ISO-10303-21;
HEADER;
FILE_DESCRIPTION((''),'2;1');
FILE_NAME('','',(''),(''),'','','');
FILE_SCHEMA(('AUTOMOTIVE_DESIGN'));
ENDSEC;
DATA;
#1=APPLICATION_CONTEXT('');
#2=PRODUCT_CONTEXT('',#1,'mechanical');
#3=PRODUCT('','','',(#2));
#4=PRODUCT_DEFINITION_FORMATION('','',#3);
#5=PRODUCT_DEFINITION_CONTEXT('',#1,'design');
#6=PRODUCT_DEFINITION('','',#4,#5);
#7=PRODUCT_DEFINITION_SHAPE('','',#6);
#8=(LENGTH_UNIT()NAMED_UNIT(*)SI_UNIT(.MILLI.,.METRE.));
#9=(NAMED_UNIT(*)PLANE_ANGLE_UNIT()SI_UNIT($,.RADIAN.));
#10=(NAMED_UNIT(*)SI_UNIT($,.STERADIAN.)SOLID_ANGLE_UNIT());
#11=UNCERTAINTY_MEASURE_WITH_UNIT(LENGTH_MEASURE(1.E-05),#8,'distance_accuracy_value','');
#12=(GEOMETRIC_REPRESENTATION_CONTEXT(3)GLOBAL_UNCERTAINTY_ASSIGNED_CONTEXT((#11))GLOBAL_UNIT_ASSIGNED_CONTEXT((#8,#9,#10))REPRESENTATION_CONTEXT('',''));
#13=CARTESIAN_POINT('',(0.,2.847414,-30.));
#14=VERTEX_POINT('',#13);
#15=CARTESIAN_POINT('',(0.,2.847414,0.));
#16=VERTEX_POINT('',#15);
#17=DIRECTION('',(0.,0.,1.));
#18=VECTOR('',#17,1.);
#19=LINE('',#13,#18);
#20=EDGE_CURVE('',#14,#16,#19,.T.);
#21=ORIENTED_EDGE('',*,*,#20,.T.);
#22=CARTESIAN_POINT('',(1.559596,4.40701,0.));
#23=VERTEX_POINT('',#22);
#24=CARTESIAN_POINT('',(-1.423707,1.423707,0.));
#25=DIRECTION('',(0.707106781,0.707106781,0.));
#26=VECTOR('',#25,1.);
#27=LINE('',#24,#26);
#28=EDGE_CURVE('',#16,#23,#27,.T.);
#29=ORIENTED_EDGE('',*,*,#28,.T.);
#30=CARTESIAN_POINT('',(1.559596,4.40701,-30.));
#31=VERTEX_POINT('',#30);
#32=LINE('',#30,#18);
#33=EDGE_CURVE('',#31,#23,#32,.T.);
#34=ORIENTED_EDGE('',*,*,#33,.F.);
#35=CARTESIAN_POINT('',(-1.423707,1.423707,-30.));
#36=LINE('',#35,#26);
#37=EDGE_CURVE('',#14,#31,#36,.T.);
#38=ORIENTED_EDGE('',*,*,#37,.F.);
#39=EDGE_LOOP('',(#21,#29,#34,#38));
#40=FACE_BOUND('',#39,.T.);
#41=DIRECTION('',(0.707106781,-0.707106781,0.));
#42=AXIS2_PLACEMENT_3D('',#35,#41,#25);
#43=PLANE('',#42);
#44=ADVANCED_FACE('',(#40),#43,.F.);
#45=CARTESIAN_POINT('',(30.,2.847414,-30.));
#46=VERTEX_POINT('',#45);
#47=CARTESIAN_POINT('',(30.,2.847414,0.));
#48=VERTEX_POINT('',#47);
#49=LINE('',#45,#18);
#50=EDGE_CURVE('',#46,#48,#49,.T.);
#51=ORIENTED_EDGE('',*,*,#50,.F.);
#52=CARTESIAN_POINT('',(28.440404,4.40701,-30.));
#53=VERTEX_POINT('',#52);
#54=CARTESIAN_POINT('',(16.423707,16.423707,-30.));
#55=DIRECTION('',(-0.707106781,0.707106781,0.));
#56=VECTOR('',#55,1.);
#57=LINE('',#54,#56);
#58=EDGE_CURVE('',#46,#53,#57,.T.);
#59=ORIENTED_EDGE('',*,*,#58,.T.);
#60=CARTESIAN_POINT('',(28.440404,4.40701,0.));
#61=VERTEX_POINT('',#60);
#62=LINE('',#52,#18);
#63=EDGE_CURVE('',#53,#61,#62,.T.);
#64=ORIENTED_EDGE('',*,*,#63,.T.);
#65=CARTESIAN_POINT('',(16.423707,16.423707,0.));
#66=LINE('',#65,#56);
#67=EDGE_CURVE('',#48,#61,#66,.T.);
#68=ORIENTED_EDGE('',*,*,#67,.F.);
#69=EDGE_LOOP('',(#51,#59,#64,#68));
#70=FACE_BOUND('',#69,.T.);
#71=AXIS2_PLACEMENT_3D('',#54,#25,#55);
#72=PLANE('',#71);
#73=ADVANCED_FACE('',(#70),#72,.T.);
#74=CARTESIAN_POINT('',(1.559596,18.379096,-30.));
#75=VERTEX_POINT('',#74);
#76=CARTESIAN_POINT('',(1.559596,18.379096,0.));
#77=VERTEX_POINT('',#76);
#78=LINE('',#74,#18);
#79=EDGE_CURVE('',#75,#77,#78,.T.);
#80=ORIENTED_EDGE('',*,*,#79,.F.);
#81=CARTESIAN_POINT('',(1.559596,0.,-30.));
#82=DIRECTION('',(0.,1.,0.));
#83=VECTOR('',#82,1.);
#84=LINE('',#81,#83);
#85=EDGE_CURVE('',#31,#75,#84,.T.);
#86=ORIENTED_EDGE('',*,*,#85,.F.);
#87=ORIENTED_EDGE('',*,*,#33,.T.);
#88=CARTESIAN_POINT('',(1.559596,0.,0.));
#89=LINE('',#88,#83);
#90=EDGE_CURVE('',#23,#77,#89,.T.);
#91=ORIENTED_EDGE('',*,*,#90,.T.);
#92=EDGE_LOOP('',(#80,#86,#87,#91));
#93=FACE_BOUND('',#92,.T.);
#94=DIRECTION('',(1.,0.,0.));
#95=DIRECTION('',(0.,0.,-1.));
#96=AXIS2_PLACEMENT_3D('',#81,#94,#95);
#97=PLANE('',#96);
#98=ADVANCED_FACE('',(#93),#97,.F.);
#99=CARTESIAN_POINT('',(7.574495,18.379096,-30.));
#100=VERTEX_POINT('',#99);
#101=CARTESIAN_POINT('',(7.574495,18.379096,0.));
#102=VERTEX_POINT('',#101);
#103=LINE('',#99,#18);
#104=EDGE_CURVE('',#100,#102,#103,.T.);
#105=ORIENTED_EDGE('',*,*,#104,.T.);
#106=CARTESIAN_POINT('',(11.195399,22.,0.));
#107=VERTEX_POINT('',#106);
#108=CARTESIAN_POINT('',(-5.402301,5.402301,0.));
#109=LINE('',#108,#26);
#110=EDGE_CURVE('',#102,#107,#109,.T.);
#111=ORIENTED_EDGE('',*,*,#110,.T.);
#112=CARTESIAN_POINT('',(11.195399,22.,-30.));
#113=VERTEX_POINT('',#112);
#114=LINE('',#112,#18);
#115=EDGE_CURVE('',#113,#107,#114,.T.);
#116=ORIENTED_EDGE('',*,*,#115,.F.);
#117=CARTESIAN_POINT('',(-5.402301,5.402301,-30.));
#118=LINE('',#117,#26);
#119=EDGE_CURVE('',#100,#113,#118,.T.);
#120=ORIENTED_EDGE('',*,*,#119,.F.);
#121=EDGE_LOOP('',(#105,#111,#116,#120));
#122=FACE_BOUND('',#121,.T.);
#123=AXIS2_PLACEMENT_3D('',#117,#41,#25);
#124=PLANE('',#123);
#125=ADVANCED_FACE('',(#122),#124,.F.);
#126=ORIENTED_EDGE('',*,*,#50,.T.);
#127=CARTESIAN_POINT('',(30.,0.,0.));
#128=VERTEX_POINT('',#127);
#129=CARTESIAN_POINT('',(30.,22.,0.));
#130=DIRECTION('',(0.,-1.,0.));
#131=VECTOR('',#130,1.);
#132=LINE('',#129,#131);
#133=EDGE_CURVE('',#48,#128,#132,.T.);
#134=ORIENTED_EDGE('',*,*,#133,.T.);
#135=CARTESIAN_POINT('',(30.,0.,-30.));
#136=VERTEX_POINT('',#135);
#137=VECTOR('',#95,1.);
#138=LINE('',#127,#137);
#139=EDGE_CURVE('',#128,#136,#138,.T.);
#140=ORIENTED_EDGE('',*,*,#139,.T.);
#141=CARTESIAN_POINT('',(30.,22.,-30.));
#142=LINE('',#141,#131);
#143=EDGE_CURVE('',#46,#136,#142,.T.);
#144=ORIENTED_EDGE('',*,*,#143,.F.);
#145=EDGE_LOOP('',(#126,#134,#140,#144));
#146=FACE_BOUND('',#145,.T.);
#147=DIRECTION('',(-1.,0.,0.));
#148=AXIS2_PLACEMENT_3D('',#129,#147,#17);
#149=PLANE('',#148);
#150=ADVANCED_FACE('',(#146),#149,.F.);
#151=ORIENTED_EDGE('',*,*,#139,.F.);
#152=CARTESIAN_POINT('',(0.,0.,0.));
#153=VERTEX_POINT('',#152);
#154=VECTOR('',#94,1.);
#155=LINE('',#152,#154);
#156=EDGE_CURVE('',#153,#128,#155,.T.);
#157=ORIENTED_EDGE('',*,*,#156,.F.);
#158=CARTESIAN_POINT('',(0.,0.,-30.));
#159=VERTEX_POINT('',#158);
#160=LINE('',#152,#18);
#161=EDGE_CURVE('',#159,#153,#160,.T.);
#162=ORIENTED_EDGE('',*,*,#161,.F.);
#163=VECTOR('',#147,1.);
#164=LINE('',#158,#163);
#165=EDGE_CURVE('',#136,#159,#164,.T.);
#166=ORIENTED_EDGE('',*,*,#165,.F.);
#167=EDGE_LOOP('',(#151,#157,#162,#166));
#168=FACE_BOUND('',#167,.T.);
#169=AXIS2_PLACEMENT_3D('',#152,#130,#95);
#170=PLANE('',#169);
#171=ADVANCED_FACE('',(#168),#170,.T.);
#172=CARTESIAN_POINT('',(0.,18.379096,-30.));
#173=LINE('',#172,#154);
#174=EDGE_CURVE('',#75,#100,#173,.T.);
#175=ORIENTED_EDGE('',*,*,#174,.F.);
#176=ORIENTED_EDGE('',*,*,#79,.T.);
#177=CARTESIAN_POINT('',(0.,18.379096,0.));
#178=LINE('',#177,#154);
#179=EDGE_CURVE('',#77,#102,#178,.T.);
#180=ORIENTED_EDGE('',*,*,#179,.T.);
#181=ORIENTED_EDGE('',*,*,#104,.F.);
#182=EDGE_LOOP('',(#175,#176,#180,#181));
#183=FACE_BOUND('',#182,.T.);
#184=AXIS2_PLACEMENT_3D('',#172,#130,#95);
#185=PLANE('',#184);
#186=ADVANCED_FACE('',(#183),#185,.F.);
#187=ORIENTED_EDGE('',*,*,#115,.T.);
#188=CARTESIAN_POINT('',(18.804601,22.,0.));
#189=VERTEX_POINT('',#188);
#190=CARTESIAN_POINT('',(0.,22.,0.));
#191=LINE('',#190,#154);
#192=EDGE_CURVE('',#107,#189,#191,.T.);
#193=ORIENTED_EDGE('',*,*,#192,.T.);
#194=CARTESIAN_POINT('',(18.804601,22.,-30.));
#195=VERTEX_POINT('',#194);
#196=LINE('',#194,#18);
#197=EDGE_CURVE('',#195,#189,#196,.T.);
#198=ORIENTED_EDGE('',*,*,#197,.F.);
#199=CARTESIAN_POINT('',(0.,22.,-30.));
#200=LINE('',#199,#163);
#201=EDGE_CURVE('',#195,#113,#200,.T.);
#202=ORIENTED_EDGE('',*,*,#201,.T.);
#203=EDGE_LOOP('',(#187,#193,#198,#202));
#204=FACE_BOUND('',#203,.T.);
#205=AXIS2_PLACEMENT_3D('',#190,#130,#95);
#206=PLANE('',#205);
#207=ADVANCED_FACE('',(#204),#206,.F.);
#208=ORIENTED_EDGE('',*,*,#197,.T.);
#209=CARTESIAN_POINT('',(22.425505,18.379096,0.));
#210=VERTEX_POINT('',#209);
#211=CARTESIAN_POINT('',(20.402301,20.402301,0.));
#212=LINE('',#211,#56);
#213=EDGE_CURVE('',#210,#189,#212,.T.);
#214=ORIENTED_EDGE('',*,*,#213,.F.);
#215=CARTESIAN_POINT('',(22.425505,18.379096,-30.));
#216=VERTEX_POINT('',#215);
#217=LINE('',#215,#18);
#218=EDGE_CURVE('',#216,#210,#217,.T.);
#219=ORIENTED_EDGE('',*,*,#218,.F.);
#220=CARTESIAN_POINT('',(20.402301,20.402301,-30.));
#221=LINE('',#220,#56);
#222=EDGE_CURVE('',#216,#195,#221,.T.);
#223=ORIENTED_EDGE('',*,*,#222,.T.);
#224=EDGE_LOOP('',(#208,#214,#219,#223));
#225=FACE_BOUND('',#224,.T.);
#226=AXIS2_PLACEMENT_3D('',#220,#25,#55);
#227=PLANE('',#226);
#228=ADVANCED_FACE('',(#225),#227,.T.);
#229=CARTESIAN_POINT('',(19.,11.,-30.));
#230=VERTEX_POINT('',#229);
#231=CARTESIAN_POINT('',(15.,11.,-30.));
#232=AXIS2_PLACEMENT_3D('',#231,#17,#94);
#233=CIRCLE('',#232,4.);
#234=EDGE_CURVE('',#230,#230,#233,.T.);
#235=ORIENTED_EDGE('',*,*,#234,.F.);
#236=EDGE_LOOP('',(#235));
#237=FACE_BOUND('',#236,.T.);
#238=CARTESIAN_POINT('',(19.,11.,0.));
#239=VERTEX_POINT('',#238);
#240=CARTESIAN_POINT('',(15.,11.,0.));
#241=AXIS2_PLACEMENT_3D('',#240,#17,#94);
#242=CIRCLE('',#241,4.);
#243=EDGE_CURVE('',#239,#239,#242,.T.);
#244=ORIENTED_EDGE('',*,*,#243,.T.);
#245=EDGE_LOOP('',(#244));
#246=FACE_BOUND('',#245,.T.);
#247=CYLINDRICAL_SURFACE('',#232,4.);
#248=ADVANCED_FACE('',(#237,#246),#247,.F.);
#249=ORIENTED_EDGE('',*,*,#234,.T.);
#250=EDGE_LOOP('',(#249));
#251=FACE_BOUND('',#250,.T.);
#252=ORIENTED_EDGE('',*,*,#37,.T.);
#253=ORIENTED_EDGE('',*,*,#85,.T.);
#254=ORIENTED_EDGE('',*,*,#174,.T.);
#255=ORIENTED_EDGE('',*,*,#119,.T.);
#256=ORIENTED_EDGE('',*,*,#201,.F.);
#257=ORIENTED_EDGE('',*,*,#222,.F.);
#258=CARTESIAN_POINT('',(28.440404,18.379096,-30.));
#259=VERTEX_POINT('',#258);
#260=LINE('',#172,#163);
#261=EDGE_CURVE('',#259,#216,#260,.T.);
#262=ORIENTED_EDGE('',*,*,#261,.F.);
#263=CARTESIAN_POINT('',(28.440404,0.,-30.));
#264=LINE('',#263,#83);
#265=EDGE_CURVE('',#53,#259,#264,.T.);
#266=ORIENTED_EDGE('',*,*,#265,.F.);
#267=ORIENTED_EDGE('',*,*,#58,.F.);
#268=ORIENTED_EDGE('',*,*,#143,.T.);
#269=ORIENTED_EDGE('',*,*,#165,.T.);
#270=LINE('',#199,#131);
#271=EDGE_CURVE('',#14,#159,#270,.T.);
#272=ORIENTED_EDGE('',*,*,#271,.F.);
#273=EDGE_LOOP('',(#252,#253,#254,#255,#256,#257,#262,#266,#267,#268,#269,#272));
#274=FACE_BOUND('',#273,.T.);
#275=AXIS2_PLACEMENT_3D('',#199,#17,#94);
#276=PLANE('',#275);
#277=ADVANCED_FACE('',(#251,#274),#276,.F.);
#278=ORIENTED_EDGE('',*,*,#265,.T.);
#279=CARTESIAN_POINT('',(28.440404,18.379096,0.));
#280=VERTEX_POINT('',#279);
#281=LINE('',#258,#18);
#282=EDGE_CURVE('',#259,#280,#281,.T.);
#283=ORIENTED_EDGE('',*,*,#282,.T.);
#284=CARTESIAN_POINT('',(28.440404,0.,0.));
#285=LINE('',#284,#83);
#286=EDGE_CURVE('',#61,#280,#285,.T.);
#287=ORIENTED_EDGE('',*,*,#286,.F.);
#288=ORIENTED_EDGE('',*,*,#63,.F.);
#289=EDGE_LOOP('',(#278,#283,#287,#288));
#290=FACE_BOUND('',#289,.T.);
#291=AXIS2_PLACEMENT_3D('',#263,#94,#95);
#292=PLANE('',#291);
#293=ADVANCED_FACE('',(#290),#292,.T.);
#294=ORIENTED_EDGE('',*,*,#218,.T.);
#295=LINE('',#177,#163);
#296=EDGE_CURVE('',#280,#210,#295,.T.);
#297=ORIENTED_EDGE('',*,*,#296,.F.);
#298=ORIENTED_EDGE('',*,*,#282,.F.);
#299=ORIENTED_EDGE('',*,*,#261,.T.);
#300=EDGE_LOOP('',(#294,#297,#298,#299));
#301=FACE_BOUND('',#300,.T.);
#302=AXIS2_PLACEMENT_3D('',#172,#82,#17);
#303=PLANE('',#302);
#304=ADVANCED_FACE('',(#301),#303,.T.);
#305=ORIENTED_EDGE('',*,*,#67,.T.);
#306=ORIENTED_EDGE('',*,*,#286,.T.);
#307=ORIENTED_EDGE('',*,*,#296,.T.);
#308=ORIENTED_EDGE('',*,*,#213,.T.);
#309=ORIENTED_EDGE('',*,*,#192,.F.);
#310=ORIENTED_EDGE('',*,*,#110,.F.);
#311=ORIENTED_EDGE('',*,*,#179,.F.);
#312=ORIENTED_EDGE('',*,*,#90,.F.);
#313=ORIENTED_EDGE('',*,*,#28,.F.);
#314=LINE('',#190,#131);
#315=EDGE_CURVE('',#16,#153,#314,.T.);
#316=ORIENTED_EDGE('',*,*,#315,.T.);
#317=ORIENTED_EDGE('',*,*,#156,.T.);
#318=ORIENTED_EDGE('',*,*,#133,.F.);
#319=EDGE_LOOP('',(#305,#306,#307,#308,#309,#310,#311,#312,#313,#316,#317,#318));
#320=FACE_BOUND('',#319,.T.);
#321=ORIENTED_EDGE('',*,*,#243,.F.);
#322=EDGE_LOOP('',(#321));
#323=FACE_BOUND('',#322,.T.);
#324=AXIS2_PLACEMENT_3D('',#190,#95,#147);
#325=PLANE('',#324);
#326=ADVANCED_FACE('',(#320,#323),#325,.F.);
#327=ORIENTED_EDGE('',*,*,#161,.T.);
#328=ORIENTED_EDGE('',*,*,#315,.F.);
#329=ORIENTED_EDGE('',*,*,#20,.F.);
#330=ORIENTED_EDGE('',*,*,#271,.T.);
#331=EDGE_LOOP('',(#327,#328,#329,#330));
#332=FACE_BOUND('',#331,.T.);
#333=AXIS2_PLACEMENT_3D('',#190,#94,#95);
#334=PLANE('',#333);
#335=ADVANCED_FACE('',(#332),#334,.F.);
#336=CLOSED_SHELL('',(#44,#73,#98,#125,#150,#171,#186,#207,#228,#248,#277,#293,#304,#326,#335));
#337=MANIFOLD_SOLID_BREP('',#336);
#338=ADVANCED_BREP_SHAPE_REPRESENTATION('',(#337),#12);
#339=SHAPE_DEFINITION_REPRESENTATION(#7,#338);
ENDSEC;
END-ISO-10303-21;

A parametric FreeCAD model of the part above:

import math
import FreeCAD as App
import Part
import Sketcher
from FreeCAD import Vector
Q = App.Units.Quantity

doc = App.newDocument("Part")
params = doc.addObject("Spreadsheet::Sheet", "Params")
for row, (alias, value) in enumerate([
    ("sketch1_width", "30 mm"),
    ("pad1_length", "22 mm"),
    ("sketch2_radius", "4 mm"),
], start=1):
    params.set(f"A{row}", alias)
    params.set(f"B{row}", "=" + value)
    params.setAlias(f"B{row}", alias)

body = doc.addObject("PartDesign::Body", "Body")

# Sketch on XZ plane
sketch1 = doc.addObject("Sketcher::SketchObject", "Sketch")
body.addObject(sketch1)
sketch1.AttachmentSupport = (doc.XZ_Plane, [""])
sketch1.MapMode = "FlatFace"
sketch1.addGeometry(Part.LineSegment(Vector(0, -30, 0), Vector(0, 0, 0)), False)
sketch1.addGeometry(Part.LineSegment(Vector(0, 0, 0), Vector(30, 0, 0)), False)
sketch1.addGeometry(Part.LineSegment(Vector(30, 0, 0), Vector(30, -30, 0)), False)
sketch1.addGeometry(Part.LineSegment(Vector(30, -30, 0), Vector(0, -30, 0)), False)
sketch1.addConstraint(Sketcher.Constraint("Coincident", 0, 2, 1, 1))
sketch1.addConstraint(Sketcher.Constraint("Coincident", 1, 2, 2, 1))
sketch1.addConstraint(Sketcher.Constraint("Coincident", 2, 2, 3, 1))
sketch1.addConstraint(Sketcher.Constraint("Coincident", 3, 2, 0, 1))
sketch1.addConstraint(Sketcher.Constraint("Vertical", 0))
sketch1.addConstraint(Sketcher.Constraint("Horizontal", 1))
sketch1.addConstraint(Sketcher.Constraint("Vertical", 2))
sketch1.addConstraint(Sketcher.Constraint("Horizontal", 3))
sketch1.addConstraint(Sketcher.Constraint("Coincident", 0, 2, -1, 1))
sketch1.addConstraint(Sketcher.Constraint("Equal", 3, 0))
sketch1.addConstraint(Sketcher.Constraint("DistanceX", 1, 1, 1, 2, Q("30 mm")))
sketch1.setExpression("Constraints[10]", "Params.sketch1_width")
pad1 = doc.addObject("PartDesign::Pad", "Pad")
body.addObject(pad1)
pad1.Profile = sketch1
pad1.setExpression("Length", "Params.pad1_length")
pad1.Reversed = True

# Sketch on XY plane
sketch2 = doc.addObject("Sketcher::SketchObject", "Sketch001")
body.addObject(sketch2)
sketch2.AttachmentSupport = (doc.XY_Plane, [""])
sketch2.MapMode = "FlatFace"
sketch2.addGeometry(Part.LineSegment(Vector(7.574495, 18.379096, 0), Vector(11.195399, 22, 0)), False)
sketch2.addGeometry(Part.LineSegment(Vector(11.195399, 22, 0), Vector(0, 22, 0)), False)
sketch2.addGeometry(Part.LineSegment(Vector(0, 22, 0), Vector(0, 2.847414, 0)), False)
sketch2.addGeometry(Part.LineSegment(Vector(0, 2.847414, 0), Vector(1.559596, 4.40701, 0)), False)
sketch2.addGeometry(Part.LineSegment(Vector(1.559596, 4.40701, 0), Vector(1.559596, 18.379096, 0)), False)
sketch2.addGeometry(Part.LineSegment(Vector(1.559596, 18.379096, 0), Vector(7.574495, 18.379096, 0)), False)
sketch2.addGeometry(Part.LineSegment(Vector(30, 22, 0), Vector(18.804601, 22, 0)), False)
sketch2.addGeometry(Part.LineSegment(Vector(18.804601, 22, 0), Vector(22.425505, 18.379096, 0)), False)
sketch2.addGeometry(Part.LineSegment(Vector(22.425505, 18.379096, 0), Vector(28.440404, 18.379096, 0)), False)
sketch2.addGeometry(Part.LineSegment(Vector(28.440404, 18.379096, 0), Vector(28.440404, 4.40701, 0)), False)
sketch2.addGeometry(Part.LineSegment(Vector(28.440404, 4.40701, 0), Vector(30, 2.847414, 0)), False)
sketch2.addGeometry(Part.LineSegment(Vector(30, 2.847414, 0), Vector(30, 22, 0)), False)
sketch2.addGeometry(Part.ArcOfCircle(Part.Circle(Vector(15, 11, 0), Vector(0, 0, 1), 4), math.radians(0), math.radians(90)), False)
sketch2.addGeometry(Part.ArcOfCircle(Part.Circle(Vector(15, 11, 0), Vector(0, 0, 1), 4), math.radians(90), math.radians(270)), False)
sketch2.addGeometry(Part.ArcOfCircle(Part.Circle(Vector(15, 11, 0), Vector(0, 0, 1), 4), math.radians(-90), math.radians(0)), False)
sketch2.addConstraint(Sketcher.Constraint("Coincident", 0, 2, 1, 1))
sketch2.addConstraint(Sketcher.Constraint("Coincident", 1, 2, 2, 1))
sketch2.addConstraint(Sketcher.Constraint("Coincident", 2, 2, 3, 1))
sketch2.addConstraint(Sketcher.Constraint("Coincident", 3, 2, 4, 1))
sketch2.addConstraint(Sketcher.Constraint("Coincident", 4, 2, 5, 1))
sketch2.addConstraint(Sketcher.Constraint("Coincident", 5, 2, 0, 1))
sketch2.addConstraint(Sketcher.Constraint("Coincident", 6, 2, 7, 1))
sketch2.addConstraint(Sketcher.Constraint("Coincident", 7, 2, 8, 1))
sketch2.addConstraint(Sketcher.Constraint("Coincident", 8, 2, 9, 1))
sketch2.addConstraint(Sketcher.Constraint("Coincident", 9, 2, 10, 1))
sketch2.addConstraint(Sketcher.Constraint("Coincident", 10, 2, 11, 1))
sketch2.addConstraint(Sketcher.Constraint("Coincident", 11, 2, 6, 1))
sketch2.addConstraint(Sketcher.Constraint("Tangent", 12, 2, 13, 1))
sketch2.addConstraint(Sketcher.Constraint("Tangent", 13, 2, 14, 1))
sketch2.addConstraint(Sketcher.Constraint("Tangent", 14, 2, 12, 1))
sketch2.addConstraint(Sketcher.Constraint("Horizontal", 1))
sketch2.addConstraint(Sketcher.Constraint("Vertical", 2))
sketch2.addConstraint(Sketcher.Constraint("Vertical", 4))
sketch2.addConstraint(Sketcher.Constraint("Horizontal", 5))
sketch2.addConstraint(Sketcher.Constraint("Horizontal", 6))
sketch2.addConstraint(Sketcher.Constraint("Horizontal", 8))
sketch2.addConstraint(Sketcher.Constraint("Vertical", 9))
sketch2.addConstraint(Sketcher.Constraint("Vertical", 11))
sketch2.addConstraint(Sketcher.Constraint("PointOnObject", 1, 2, -2))
sketch2.addConstraint(Sketcher.Constraint("Parallel", 0, 3))
sketch2.addConstraint(Sketcher.Constraint("Perpendicular", 3, 7))
sketch2.addConstraint(Sketcher.Constraint("Parallel", 7, 10))
sketch2.addConstraint(Sketcher.Constraint("Horizontal", 1, 2, 6, 2))
sketch2.addConstraint(Sketcher.Constraint("Horizontal", 5, 2, 7, 2))
sketch2.addConstraint(Sketcher.Constraint("Horizontal", 3, 2, 9, 2))
sketch2.addConstraint(Sketcher.Constraint("Horizontal", 2, 2, 10, 2))
sketch2.addConstraint(Sketcher.Constraint("Horizontal", 13, 3, 14, 2))
sketch2.addConstraint(Sketcher.Constraint("Vertical", 14, 3, 12, 2))
sketch2.addConstraint(Sketcher.Constraint("Vertical", 12, 2, 13, 2))
sketch2.addConstraint(Sketcher.Constraint("Equal", 1, 6))
sketch2.addConstraint(Sketcher.Constraint("Equal", 5, 8))
sketch2.addConstraint(Sketcher.Constraint("Radius", 12, Q("4 mm")))
sketch2.addConstraint(Sketcher.Constraint("DistanceX", -1, 1, 12, 3, Q("15 mm")))
sketch2.addConstraint(Sketcher.Constraint("DistanceY", -1, 1, 12, 3, Q("11 mm")))
sketch2.addConstraint(Sketcher.Constraint("DistanceY", -1, 1, 0, 2, Q("22 mm")))
sketch2.addConstraint(Sketcher.Constraint("DistanceX", -1, 1, 10, 2, Q("30 mm")))
sketch2.addConstraint(Sketcher.Constraint("DistanceX", 1, 2, 1, 1, Q("11.195399 mm")))
sketch2.addConstraint(Sketcher.Constraint("DistanceX", 5, 1, 5, 2, Q("6.014899 mm")))
sketch2.addConstraint(Sketcher.Constraint("Distance", 3, Q("2.205602 mm")))
sketch2.addConstraint(Sketcher.Constraint("DistanceY", 2, 2, 2, 1, Q("19.152586 mm")))
sketch2.setExpression("Constraints[36]", "Params.sketch2_radius")
pocket1 = doc.addObject("PartDesign::Pocket", "Pocket")
body.addObject(pocket1)
pocket1.Profile = sketch2
pocket1.Type = "ThroughAll"

doc.recompute()
